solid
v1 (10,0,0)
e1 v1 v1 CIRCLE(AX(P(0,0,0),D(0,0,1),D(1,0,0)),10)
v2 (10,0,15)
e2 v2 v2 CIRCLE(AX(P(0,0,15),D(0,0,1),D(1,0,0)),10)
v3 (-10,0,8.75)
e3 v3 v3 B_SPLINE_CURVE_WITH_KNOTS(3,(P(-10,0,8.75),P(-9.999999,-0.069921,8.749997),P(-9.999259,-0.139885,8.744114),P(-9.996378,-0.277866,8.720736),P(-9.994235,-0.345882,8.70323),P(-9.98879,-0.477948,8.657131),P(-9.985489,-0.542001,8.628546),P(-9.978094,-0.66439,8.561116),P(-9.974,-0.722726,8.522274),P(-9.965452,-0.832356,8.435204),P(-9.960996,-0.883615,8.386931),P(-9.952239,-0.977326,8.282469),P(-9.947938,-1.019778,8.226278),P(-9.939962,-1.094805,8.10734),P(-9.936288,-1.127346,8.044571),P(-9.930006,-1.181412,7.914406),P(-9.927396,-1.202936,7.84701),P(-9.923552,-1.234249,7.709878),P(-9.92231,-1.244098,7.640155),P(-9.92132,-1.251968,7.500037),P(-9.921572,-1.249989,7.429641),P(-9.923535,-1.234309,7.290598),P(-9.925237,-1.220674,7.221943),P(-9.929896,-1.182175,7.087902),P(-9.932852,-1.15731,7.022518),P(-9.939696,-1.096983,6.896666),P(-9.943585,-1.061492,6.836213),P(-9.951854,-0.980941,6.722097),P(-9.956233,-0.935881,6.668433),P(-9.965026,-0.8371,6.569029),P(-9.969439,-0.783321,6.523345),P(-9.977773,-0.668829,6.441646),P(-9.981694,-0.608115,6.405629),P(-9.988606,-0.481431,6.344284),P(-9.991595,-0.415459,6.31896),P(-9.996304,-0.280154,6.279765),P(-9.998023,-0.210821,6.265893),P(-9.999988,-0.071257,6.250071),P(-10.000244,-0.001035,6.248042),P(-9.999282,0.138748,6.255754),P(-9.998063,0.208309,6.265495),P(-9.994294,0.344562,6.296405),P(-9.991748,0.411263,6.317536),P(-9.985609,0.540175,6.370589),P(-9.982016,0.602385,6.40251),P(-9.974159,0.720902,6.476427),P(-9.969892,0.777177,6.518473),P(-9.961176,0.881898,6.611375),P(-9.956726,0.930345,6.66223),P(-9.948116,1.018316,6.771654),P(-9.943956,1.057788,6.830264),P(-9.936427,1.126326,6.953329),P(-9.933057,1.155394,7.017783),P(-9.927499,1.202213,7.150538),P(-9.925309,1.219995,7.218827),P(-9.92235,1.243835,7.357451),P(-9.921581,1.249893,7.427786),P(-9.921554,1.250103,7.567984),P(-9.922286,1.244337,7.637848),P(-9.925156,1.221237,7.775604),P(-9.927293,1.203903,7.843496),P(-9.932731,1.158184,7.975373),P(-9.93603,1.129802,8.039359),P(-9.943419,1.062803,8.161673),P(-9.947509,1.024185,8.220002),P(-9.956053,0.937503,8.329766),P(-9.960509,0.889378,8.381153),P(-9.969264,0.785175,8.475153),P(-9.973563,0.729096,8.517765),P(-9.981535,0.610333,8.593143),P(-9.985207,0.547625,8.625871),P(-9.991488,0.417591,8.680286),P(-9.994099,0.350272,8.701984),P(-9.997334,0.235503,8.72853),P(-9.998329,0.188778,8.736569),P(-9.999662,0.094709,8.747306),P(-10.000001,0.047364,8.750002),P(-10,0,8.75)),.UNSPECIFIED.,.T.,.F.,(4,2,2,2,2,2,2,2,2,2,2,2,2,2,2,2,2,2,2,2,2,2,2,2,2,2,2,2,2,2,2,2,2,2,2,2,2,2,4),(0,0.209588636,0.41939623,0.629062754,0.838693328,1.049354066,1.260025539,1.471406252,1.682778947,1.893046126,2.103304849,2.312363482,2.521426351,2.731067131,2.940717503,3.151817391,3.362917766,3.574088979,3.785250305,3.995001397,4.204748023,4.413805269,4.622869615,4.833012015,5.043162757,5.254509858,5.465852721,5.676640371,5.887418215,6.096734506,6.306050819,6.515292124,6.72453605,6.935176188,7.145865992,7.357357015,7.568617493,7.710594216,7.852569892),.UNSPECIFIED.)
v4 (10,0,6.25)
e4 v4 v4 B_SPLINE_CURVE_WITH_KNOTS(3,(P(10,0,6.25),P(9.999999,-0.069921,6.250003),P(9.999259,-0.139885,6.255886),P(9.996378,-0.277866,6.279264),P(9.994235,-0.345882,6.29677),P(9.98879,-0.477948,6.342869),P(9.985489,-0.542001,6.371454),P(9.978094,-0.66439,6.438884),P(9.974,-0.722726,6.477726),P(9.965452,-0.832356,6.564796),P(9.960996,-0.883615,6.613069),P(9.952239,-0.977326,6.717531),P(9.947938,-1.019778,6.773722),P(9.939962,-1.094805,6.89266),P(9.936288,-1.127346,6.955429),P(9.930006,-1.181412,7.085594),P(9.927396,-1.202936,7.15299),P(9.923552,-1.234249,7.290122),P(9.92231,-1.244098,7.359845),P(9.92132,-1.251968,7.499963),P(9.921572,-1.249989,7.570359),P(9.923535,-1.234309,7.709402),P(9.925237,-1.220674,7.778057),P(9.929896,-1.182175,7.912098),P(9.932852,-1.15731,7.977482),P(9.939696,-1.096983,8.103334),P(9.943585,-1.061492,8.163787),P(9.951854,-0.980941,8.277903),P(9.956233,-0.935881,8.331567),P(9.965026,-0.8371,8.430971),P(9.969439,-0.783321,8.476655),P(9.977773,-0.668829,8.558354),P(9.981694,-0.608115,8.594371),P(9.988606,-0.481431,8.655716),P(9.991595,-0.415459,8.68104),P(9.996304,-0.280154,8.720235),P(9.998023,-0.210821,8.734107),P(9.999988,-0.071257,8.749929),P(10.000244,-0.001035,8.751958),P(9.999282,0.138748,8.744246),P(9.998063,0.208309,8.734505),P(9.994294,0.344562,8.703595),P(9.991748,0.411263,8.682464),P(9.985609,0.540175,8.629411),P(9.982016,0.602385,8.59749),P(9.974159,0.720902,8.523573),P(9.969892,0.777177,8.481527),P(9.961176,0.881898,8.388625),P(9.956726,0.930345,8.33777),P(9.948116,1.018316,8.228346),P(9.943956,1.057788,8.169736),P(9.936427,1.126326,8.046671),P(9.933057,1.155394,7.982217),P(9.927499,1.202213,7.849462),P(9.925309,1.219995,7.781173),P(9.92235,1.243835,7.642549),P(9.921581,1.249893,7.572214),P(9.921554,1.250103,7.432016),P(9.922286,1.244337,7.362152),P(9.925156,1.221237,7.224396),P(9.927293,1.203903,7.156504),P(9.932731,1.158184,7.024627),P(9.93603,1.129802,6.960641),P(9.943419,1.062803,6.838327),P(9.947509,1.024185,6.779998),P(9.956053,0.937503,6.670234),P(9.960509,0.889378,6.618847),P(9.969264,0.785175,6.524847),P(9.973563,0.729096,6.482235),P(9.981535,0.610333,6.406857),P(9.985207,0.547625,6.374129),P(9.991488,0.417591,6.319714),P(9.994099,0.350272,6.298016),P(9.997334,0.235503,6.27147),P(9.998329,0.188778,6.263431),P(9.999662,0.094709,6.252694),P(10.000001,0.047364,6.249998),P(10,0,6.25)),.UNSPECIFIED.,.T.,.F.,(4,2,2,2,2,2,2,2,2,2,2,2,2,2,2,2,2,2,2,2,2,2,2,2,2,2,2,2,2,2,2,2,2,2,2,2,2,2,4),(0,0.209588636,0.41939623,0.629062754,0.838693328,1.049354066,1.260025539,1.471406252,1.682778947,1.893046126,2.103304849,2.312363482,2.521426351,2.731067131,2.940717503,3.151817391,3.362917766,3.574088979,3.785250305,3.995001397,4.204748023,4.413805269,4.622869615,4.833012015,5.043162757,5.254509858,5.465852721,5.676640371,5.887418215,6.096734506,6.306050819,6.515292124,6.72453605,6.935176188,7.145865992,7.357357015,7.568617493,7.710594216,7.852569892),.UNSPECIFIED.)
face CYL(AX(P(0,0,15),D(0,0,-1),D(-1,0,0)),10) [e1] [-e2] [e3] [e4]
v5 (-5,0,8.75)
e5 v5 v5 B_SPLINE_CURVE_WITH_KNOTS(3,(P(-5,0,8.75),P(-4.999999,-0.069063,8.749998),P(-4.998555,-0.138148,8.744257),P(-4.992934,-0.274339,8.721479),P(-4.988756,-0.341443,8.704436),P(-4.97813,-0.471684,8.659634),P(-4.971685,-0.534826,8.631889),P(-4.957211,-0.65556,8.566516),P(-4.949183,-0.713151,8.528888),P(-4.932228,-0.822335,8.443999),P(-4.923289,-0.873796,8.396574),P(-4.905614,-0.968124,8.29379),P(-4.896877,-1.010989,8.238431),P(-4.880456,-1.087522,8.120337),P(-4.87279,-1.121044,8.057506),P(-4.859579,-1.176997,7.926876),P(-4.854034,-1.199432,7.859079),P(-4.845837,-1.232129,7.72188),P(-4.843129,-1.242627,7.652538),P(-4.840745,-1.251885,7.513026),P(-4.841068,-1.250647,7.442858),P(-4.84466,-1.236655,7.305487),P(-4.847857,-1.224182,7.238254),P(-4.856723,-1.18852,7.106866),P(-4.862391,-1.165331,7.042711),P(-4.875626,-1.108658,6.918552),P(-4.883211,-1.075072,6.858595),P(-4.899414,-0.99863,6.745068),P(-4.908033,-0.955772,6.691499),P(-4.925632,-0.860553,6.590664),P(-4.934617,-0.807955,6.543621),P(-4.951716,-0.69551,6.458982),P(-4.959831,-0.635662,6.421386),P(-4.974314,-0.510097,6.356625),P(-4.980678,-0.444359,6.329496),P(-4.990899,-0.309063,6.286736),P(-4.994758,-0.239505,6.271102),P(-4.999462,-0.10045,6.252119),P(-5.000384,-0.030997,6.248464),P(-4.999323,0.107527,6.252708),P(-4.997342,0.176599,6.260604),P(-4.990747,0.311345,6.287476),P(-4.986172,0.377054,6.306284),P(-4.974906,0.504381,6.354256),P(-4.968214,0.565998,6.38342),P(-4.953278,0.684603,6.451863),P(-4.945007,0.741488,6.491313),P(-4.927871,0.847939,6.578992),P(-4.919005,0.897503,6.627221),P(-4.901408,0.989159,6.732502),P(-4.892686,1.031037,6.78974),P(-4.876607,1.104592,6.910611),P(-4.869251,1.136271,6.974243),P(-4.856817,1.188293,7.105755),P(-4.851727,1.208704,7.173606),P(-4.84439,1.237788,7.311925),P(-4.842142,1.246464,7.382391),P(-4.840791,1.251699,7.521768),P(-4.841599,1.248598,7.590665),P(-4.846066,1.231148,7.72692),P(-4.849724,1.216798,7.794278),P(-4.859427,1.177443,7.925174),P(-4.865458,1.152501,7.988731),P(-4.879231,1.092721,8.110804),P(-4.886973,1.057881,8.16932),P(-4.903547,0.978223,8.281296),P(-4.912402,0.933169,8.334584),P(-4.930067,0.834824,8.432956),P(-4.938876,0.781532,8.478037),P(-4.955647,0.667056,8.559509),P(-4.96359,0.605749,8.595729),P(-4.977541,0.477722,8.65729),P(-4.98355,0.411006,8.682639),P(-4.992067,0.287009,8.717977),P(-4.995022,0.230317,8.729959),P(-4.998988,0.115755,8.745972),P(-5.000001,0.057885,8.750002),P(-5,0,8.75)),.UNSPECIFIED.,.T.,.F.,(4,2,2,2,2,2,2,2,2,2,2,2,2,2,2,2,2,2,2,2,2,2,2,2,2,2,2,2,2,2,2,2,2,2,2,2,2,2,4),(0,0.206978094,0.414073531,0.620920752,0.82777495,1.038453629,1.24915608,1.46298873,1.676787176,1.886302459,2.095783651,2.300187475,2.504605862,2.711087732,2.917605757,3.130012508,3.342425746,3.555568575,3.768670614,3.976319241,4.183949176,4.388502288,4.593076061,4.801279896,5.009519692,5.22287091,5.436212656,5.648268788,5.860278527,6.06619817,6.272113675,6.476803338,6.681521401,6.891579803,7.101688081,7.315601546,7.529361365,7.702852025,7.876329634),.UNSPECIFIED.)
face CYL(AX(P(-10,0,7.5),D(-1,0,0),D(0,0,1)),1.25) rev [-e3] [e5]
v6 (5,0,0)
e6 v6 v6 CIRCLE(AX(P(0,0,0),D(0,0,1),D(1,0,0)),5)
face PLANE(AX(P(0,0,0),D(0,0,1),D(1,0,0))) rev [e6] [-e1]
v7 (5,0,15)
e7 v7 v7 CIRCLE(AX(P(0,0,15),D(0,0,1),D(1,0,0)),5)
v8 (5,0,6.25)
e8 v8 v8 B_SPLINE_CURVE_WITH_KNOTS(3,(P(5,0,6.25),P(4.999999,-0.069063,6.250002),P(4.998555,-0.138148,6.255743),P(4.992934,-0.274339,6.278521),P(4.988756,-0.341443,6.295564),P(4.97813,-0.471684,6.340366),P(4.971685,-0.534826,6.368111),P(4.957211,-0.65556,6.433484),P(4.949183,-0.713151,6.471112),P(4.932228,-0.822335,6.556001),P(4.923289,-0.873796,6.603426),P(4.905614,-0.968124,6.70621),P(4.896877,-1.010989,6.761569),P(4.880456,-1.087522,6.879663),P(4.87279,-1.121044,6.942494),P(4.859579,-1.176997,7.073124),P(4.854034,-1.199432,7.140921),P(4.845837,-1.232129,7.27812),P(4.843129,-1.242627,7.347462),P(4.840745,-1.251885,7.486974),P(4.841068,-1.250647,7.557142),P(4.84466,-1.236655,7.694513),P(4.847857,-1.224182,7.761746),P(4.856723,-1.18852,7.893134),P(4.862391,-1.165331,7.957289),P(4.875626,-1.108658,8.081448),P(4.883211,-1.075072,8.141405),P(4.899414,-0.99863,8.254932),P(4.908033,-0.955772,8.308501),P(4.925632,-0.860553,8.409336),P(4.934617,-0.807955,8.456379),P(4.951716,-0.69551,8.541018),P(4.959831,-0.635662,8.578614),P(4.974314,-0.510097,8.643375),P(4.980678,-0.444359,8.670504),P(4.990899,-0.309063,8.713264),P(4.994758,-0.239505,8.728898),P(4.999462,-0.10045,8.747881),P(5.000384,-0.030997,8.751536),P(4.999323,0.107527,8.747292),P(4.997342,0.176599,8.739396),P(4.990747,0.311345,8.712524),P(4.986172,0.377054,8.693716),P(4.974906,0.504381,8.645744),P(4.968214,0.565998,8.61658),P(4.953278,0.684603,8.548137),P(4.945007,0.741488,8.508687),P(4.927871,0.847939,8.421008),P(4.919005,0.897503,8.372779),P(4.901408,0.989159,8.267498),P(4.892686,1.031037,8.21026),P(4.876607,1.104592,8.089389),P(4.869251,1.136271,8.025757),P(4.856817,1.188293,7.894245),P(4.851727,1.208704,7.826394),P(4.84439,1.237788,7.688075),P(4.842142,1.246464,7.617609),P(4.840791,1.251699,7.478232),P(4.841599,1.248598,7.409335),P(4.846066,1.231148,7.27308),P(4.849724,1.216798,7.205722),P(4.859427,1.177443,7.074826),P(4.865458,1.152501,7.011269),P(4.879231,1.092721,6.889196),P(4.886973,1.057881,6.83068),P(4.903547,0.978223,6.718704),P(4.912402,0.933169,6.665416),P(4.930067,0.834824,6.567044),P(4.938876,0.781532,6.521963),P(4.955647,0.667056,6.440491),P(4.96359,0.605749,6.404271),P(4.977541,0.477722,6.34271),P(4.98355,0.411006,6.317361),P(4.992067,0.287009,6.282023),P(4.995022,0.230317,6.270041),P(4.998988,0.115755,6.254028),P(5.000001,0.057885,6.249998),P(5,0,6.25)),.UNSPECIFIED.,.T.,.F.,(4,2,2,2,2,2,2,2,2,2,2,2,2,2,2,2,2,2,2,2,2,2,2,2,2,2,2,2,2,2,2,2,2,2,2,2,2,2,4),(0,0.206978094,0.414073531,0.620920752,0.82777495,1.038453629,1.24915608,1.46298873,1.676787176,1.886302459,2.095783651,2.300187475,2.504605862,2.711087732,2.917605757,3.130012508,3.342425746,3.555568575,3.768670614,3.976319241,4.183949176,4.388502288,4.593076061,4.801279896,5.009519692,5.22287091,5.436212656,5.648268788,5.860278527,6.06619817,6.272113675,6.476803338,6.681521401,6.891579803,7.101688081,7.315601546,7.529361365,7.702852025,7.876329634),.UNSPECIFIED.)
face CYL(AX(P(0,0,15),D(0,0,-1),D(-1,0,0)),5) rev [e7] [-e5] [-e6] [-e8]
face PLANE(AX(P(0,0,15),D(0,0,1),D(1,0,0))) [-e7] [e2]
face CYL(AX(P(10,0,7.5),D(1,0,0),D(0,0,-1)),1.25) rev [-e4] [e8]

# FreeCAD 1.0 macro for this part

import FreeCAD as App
import Part
import Sketcher

doc = App.newDocument("Part")
body = doc.addObject("PartDesign::Body", "Body")

# Sketch on XY plane
sketch1 = doc.addObject("Sketcher::SketchObject", "Sketch")
body.addObject(sketch1)
sketch1.AttachmentSupport = (doc.XY_Plane, [""])
sketch1.MapMode = "FlatFace"
sketch1.addGeometry([
    Part.Circle(App.Vector(0, 0, 0), App.Vector(0, 0, 1), 10),
    Part.Circle(App.Vector(0, 0, 0), App.Vector(0, 0, 1), 5),
], False)
sketch1.addConstraint([
    Sketcher.Constraint("Coincident", 0, 3, -1, 1),
    Sketcher.Constraint("Coincident", 1, 3, -1, 1),
    Sketcher.Constraint("Diameter", 0, 20.0),
    Sketcher.Constraint("Diameter", 1, 10.0),
])
pad1 = doc.addObject("PartDesign::Pad", "Pad")
body.addObject(pad1)
pad1.Profile = sketch1
pad1.Length = 15

# Sketch on YZ plane
sketch2 = doc.addObject("Sketcher::SketchObject", "Sketch001")
body.addObject(sketch2)
sketch2.AttachmentSupport = (doc.YZ_Plane, [""])
sketch2.MapMode = "FlatFace"
sketch2.AttachmentOffset = App.Placement(App.Vector(0, 0, 10), App.Rotation())
sketch2.addGeometry(Part.Circle(App.Vector(0, 7.5, 0), App.Vector(0, 0, 1), 1.2), False)
sketch2.addConstraint([
    Sketcher.Constraint("PointOnObject", 0, 3, -2),
    Sketcher.Constraint("Diameter", 0, 2.5),
    Sketcher.Constraint("DistanceY", -1, 1, 0, 3, 7.5),
])
doc.recompute()
hole = doc.addObject("PartDesign::Hole", "Hole")
body.addObject(hole)
hole.Profile = sketch2
hole.ThreadType = "None"
hole.Diameter = 2.5
hole.DepthType = "Dimension"
hole.Depth = 8.5
hole.DrillPoint = "Angled"
hole.DrillPointAngle = 118

# Sketch on YZ plane
sketch3 = doc.addObject("Sketcher::SketchObject", "Sketch002")
body.addObject(sketch3)
sketch3.AttachmentSupport = (doc.YZ_Plane, [""])
sketch3.MapMode = "FlatFace"
sketch3.AttachmentOffset = App.Placement(App.Vector(0, 0, -10), App.Rotation())
sketch3.addGeometry(Part.Circle(App.Vector(0, 7.5, 0), App.Vector(0, 0, 1), 1.2), False)
sketch3.addConstraint([
    Sketcher.Constraint("PointOnObject", 0, 3, -2),
    Sketcher.Constraint("Diameter", 0, 2.5),
    Sketcher.Constraint("DistanceY", -1, 1, 0, 3, 7.5),
])
doc.recompute()
hole2 = doc.addObject("PartDesign::Hole", "Hole001")
body.addObject(hole2)
hole2.Profile = sketch3
hole2.ThreadType = "None"
hole2.Diameter = 2.5
hole2.DepthType = "Dimension"
hole2.Depth = 8.5
hole2.DrillPoint = "Angled"
hole2.DrillPointAngle = 118
hole2.Reversed = True

doc.recompute()
